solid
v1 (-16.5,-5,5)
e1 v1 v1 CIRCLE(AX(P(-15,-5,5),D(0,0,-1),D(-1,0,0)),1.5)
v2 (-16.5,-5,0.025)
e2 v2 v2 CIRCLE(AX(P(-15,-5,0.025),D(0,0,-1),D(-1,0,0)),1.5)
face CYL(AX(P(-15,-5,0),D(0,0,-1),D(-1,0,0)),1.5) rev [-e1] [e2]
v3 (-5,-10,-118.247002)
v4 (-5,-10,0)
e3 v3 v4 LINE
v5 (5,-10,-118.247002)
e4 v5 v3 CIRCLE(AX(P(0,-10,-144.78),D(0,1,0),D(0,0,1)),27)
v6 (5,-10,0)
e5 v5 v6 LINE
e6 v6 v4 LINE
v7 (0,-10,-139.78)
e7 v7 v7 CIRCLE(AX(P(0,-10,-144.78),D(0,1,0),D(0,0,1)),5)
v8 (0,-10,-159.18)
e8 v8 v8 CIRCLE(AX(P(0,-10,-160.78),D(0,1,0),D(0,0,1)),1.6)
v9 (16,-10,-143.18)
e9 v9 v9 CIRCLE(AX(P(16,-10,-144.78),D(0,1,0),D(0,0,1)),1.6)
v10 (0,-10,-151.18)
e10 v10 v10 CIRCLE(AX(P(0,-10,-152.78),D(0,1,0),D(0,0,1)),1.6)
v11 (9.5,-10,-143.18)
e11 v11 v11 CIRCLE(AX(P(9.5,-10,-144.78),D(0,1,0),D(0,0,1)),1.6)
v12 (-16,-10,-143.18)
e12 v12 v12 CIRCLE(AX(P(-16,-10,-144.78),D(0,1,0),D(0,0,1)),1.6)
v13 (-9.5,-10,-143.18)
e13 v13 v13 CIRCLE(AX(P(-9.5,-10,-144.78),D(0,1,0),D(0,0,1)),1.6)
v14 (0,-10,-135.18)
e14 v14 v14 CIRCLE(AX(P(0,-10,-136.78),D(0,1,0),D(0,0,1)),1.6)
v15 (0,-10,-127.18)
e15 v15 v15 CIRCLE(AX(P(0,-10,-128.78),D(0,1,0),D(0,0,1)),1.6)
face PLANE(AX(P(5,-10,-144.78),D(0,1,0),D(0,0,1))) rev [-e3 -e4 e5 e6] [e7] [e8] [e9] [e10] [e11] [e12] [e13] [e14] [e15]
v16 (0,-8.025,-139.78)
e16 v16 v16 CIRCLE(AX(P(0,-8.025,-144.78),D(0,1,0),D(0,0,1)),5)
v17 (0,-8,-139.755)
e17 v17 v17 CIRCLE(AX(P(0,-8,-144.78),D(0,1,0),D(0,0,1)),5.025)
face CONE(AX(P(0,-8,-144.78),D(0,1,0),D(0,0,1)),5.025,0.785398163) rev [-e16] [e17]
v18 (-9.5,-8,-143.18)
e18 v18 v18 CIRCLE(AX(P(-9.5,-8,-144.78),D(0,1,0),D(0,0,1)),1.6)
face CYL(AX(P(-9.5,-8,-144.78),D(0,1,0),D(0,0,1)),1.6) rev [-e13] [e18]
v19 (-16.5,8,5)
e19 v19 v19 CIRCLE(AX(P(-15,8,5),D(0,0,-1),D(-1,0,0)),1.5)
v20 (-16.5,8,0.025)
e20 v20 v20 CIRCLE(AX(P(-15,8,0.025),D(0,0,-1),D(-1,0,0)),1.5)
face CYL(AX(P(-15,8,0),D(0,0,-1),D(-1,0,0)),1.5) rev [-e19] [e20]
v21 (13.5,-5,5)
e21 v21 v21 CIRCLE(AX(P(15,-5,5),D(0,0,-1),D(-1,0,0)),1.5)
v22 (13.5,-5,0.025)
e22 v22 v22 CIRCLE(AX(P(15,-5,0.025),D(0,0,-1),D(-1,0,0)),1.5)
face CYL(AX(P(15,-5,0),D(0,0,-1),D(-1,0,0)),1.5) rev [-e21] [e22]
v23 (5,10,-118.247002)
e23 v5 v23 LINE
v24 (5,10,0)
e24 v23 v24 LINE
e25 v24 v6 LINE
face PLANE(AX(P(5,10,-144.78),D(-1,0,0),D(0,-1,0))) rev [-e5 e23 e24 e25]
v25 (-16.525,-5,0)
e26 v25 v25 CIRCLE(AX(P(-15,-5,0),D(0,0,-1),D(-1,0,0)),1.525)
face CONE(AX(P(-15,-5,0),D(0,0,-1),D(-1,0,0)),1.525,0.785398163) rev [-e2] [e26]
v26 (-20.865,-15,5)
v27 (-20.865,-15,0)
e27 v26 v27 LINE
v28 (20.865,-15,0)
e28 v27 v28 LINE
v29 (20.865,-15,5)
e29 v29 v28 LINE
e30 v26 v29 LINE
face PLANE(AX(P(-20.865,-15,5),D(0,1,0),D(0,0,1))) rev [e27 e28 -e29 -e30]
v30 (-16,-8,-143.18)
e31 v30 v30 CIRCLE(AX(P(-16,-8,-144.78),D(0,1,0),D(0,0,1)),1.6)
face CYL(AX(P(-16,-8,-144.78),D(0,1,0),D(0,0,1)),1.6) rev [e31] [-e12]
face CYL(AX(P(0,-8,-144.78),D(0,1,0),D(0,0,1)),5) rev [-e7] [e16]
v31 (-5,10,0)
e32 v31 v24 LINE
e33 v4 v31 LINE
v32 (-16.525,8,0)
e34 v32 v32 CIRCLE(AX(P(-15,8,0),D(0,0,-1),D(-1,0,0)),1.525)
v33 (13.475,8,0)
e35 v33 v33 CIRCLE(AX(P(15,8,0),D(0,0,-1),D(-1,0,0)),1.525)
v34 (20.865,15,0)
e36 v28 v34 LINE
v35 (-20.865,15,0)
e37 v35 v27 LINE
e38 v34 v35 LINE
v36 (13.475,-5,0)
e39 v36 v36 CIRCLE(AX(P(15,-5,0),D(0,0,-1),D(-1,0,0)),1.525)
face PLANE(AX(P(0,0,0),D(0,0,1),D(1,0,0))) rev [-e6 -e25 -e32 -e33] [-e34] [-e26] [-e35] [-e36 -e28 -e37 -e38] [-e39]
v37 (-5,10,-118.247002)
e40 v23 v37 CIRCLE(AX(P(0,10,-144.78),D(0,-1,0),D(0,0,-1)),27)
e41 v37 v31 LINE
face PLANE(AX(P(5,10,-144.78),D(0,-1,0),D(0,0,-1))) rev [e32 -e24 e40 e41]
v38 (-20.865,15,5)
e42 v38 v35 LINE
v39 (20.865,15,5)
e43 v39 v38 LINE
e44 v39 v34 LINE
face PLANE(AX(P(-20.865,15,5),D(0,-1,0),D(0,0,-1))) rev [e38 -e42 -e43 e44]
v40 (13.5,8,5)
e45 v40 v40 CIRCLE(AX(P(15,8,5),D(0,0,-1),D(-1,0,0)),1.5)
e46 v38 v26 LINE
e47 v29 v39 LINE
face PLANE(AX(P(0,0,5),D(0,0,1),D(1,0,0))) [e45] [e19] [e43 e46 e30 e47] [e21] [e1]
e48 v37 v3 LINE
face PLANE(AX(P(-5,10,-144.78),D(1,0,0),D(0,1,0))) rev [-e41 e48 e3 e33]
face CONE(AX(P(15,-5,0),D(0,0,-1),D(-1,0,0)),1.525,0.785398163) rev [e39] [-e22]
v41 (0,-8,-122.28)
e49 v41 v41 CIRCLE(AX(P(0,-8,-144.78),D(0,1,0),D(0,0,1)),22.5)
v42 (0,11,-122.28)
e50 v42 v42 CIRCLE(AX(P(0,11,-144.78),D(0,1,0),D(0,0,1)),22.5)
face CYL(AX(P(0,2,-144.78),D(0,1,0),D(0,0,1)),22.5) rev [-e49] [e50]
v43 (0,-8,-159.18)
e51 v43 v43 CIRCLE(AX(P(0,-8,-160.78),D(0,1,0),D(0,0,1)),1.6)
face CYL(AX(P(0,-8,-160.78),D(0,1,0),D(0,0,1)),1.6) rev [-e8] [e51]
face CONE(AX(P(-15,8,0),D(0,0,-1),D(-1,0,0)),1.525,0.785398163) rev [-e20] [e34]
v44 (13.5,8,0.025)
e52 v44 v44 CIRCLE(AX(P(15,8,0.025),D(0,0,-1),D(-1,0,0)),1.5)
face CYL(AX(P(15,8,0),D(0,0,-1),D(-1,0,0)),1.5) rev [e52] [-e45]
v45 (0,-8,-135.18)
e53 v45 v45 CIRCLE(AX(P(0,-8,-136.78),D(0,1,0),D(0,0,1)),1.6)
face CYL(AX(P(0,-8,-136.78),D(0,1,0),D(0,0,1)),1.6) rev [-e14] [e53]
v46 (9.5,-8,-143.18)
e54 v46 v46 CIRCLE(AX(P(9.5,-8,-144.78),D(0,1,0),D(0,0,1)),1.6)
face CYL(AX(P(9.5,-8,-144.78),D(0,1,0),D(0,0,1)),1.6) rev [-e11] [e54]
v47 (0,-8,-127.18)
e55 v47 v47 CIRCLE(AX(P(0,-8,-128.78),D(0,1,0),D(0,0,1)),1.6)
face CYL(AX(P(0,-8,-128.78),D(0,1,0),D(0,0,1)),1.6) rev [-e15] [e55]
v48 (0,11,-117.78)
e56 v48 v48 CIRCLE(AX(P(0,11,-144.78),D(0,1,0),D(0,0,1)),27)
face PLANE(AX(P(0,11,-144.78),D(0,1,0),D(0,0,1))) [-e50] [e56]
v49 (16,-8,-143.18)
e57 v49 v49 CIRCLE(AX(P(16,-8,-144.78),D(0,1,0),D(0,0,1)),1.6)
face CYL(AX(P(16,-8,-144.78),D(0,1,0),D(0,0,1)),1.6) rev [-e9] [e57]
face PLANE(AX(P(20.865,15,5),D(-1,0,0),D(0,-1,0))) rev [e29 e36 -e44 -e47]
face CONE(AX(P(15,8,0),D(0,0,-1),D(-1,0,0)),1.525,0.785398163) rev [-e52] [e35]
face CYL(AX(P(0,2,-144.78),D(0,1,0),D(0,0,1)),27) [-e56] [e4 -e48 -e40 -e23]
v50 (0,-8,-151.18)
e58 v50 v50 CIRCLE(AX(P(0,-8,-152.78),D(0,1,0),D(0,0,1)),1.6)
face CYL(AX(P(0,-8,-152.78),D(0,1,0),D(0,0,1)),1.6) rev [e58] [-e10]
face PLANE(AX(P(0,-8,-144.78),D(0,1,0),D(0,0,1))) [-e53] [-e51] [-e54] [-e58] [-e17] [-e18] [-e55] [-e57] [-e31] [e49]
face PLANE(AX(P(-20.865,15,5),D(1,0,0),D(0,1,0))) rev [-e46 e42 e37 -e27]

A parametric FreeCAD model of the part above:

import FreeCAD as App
import Part
import Sketcher

doc = App.newDocument("Part")
body = doc.addObject("PartDesign::Body", "Body")

# Sketch on XY plane
sketch1 = doc.addObject("Sketcher::SketchObject", "Sketch")
body.addObject(sketch1)
sketch1.AttachmentSupport = (doc.XY_Plane, [""])
sketch1.MapMode = "FlatFace"
sketch1.addGeometry([
    Part.LineSegment(App.Vector(-21, 15, 0), App.Vector(-21, -15, 0)),
    Part.LineSegment(App.Vector(-21, -15, 0), App.Vector(21, -15, 0)),
    Part.LineSegment(App.Vector(21, -15, 0), App.Vector(21, 15, 0)),
    Part.LineSegment(App.Vector(21, 15, 0), App.Vector(-21, 15, 0)),
], False)
sketch1.addConstraint([
    Sketcher.Constraint("Coincident", 0, 2, 1, 1),
    Sketcher.Constraint("Coincident", 1, 2, 2, 1),
    Sketcher.Constraint("Coincident", 2, 2, 3, 1),
    Sketcher.Constraint("Coincident", 3, 2, 0, 1),
    Sketcher.Constraint("Vertical", 0),
    Sketcher.Constraint("Horizontal", 1),
    Sketcher.Constraint("Vertical", 2),
    Sketcher.Constraint("Horizontal", 3),
    Sketcher.Constraint("Symmetric", 0, 2, 2, 2, -1, 1),
    Sketcher.Constraint("DistanceY", 0, 2, 0, 1, 30.0),
    Sketcher.Constraint("DistanceX", 1, 1, 1, 2, 41.73),
])
pad1 = doc.addObject("PartDesign::Pad", "Pad")
body.addObject(pad1)
pad1.Profile = sketch1
pad1.Length = 5

# Sketch on XY plane
sketch2 = doc.addObject("Sketcher::SketchObject", "Sketch001")
body.addObject(sketch2)
sketch2.AttachmentSupport = (doc.XY_Plane, [""])
sketch2.MapMode = "FlatFace"
sketch2.addGeometry([
    Part.LineSegment(App.Vector(5, 10, 0), App.Vector(5, -10, 0)),
    Part.LineSegment(App.Vector(5, -10, 0), App.Vector(-5, -10, 0)),
    Part.LineSegment(App.Vector(-5, -10, 0), App.Vector(-5, 10, 0)),
    Part.LineSegment(App.Vector(-5, 10, 0), App.Vector(5, 10, 0)),
], False)
sketch2.addConstraint([
    Sketcher.Constraint("Coincident", 0, 2, 1, 1),
    Sketcher.Constraint("Coincident", 1, 2, 2, 1),
    Sketcher.Constraint("Coincident", 2, 2, 3, 1),
    Sketcher.Constraint("Coincident", 3, 2, 0, 1),
    Sketcher.Constraint("Vertical", 0),
    Sketcher.Constraint("Horizontal", 1),
    Sketcher.Constraint("Vertical", 2),
    Sketcher.Constraint("Horizontal", 3),
    Sketcher.Constraint("Symmetric", 0, 2, 2, 2, -1, 1),
    Sketcher.Constraint("DistanceX", 1, 2, 1, 1, 10.0),
    Sketcher.Constraint("DistanceY", 0, 2, 0, 1, 20.0),
])
pad2 = doc.addObject("PartDesign::Pad", "Pad001")
body.addObject(pad2)
pad2.Profile = sketch2
pad2.Length = 144.78
pad2.Reversed = True

# Sketch on XZ plane
sketch3 = doc.addObject("Sketcher::SketchObject", "Sketch002")
body.addObject(sketch3)
sketch3.AttachmentSupport = (doc.XZ_Plane, [""])
sketch3.MapMode = "FlatFace"
sketch3.AttachmentOffset = App.Placement(App.Vector(0, 0, -10), App.Rotation())
sketch3.addGeometry([
    Part.Circle(App.Vector(0, -145, 0), App.Vector(0, 0, 1), 27),
    Part.Circle(App.Vector(0, -145, 0), App.Vector(0, 0, 1), 22),
], False)
sketch3.addConstraint([
    Sketcher.Constraint("Coincident", 1, 3, 0, 3),
    Sketcher.Constraint("PointOnObject", 0, 3, -2),
    Sketcher.Constraint("Diameter", 0, 54.0),
    Sketcher.Constraint("Diameter", 1, 45.0),
    Sketcher.Constraint("DistanceY", 0, 3, -1, 1, 144.78),
])
pad3 = doc.addObject("PartDesign::Pad", "Pad002")
body.addObject(pad3)
pad3.Profile = sketch3
pad3.Type = "TwoLengths"
pad3.Length = 1
pad3.Length2 = 8
pad3.Reversed = True

# Sketch on XZ plane
sketch4 = doc.addObject("Sketcher::SketchObject", "Sketch003")
body.addObject(sketch4)
sketch4.AttachmentSupport = (doc.XZ_Plane, [""])
sketch4.MapMode = "FlatFace"
sketch4.AttachmentOffset = App.Placement(App.Vector(0, 0, -10), App.Rotation())
sketch4.addGeometry(Part.Circle(App.Vector(0, -145, 0), App.Vector(0, 0, 1), 22), False)
sketch4.addConstraint([
    Sketcher.Constraint("PointOnObject", 0, 3, -2),
    Sketcher.Constraint("Diameter", 0, 45.0),
    Sketcher.Constraint("DistanceY", 0, 3, -1, 1, 144.78),
])
pocket1 = doc.addObject("PartDesign::Pocket", "Pocket")
body.addObject(pocket1)
pocket1.Profile = sketch4
pocket1.Type = "ThroughAll"
pocket1.Reversed = True

# Sketch on XZ plane
sketch5 = doc.addObject("Sketcher::SketchObject", "Sketch004")
body.addObject(sketch5)
sketch5.AttachmentSupport = (doc.XZ_Plane, [""])
sketch5.MapMode = "FlatFace"
sketch5.AttachmentOffset = App.Placement(App.Vector(0, 0, -10), App.Rotation())
sketch5.addGeometry(Part.Circle(App.Vector(0, -145, 0), App.Vector(0, 0, 1), 27), False)
sketch5.addConstraint([
    Sketcher.Constraint("PointOnObject", 0, 3, -2),
    Sketcher.Constraint("Diameter", 0, 54.0),
    Sketcher.Constraint("DistanceY", 0, 3, -1, 1, 144.78),
])
pad4 = doc.addObject("PartDesign::Pad", "Pad003")
body.addObject(pad4)
pad4.Profile = sketch5
pad4.Length = 20

# Sketch on XZ plane
sketch6 = doc.addObject("Sketcher::SketchObject", "Sketch005")
body.addObject(sketch6)
sketch6.AttachmentSupport = (doc.XZ_Plane, [""])
sketch6.MapMode = "FlatFace"
sketch6.AttachmentOffset = App.Placement(App.Vector(0, 0, 8), App.Rotation())
sketch6.addGeometry(Part.Circle(App.Vector(0, -145, 0), App.Vector(0, 0, 1), 22), False)
sketch6.addConstraint([
    Sketcher.Constraint("PointOnObject", 0, 3, -2),
    Sketcher.Constraint("Diameter", 0, 45.0),
    Sketcher.Constraint("DistanceY", 0, 3, -1, 1, 144.78),
])
pocket2 = doc.addObject("PartDesign::Pocket", "Pocket001")
body.addObject(pocket2)
pocket2.Profile = sketch6
pocket2.Length = 18

# Sketch on XY plane
sketch7 = doc.addObject("Sketcher::SketchObject", "Sketch006")
body.addObject(sketch7)
sketch7.AttachmentSupport = (doc.XY_Plane, [""])
sketch7.MapMode = "FlatFace"
sketch7.addGeometry([
    Part.Circle(App.Vector(-15, 8, 0), App.Vector(0, 0, 1), 1.5),
    Part.Circle(App.Vector(15, 8, 0), App.Vector(0, 0, 1), 1.5),
    Part.Circle(App.Vector(-15, -5, 0), App.Vector(0, 0, 1), 1.5),
    Part.Circle(App.Vector(15, -5, 0), App.Vector(0, 0, 1), 1.5),
], False)
sketch7.addConstraint([
    Sketcher.Constraint("Equal", 0, 1),
    Sketcher.Constraint("Equal", 1, 2),
    Sketcher.Constraint("Equal", 2, 3),
    Sketcher.Constraint("Symmetric", 0, 3, 1, 3, -2),
    Sketcher.Constraint("Symmetric", 2, 3, 3, 3, -2),
    Sketcher.Constraint("Vertical", 0, 3, 2, 3),
    Sketcher.Constraint("Diameter", 0, 3.0),
    Sketcher.Constraint("DistanceX", 0, 3, -1, 1, 15.0),
    Sketcher.Constraint("DistanceY", -1, 1, 0, 3, 8.0),
    Sketcher.Constraint("DistanceY", 2, 3, -1, 1, 5.0),
])
doc.recompute()
hole = doc.addObject("PartDesign::Hole", "Hole")
body.addObject(hole)
hole.Profile = sketch7
hole.ThreadType = "None"
hole.Diameter = 3
hole.DepthType = "Dimension"
hole.Depth = 5
hole.DrillPoint = "Flat"
hole.HoleCutType = "Countersink"
hole.HoleCutDiameter = 3.05
hole.HoleCutCountersinkAngle = 90
hole.Reversed = True

# Sketch on XZ plane
sketch8 = doc.addObject("Sketcher::SketchObject", "Sketch007")
body.addObject(sketch8)
sketch8.AttachmentSupport = (doc.XZ_Plane, [""])
sketch8.MapMode = "FlatFace"
sketch8.AttachmentOffset = App.Placement(App.Vector(0, 0, 8), App.Rotation())
sketch8.addGeometry(Part.Circle(App.Vector(0, -145, 0), App.Vector(0, 0, 1), 5), False)
sketch8.addConstraint([
    Sketcher.Constraint("PointOnObject", 0, 3, -2),
    Sketcher.Constraint("Diameter", 0, 10.0),
    Sketcher.Constraint("DistanceY", 0, 3, -1, 1, 144.78),
])
doc.recompute()
hole2 = doc.addObject("PartDesign::Hole", "Hole001")
body.addObject(hole2)
hole2.Profile = sketch8
hole2.ThreadType = "None"
hole2.Diameter = 10
hole2.DepthType = "ThroughAll"
hole2.HoleCutType = "Countersink"
hole2.HoleCutDiameter = 10.05
hole2.HoleCutCountersinkAngle = 90
hole2.Reversed = True

# Sketch on XZ plane
sketch9 = doc.addObject("Sketcher::SketchObject", "Sketch008")
body.addObject(sketch9)
sketch9.AttachmentSupport = (doc.XZ_Plane, [""])
sketch9.MapMode = "FlatFace"
sketch9.AttachmentOffset = App.Placement(App.Vector(0, 0, 8), App.Rotation())
sketch9.addGeometry([
    Part.Circle(App.Vector(0, -128.8, 0), App.Vector(0, 0, 1), 1.6),  # 0
    Part.Circle(App.Vector(0, -136.8, 0), App.Vector(0, 0, 1), 1.6),  # 1
    Part.Circle(App.Vector(16, -144.8, 0), App.Vector(0, 0, 1), 1.6),  # 2
    Part.Circle(App.Vector(9.5, -144.8, 0), App.Vector(0, 0, 1), 1.6),  # 3
    Part.Circle(App.Vector(0, -160.8, 0), App.Vector(0, 0, 1), 1.6),  # 4
    Part.Circle(App.Vector(0, -152.8, 0), App.Vector(0, 0, 1), 1.6),  # 5
    Part.Circle(App.Vector(-16, -144.8, 0), App.Vector(0, 0, 1), 1.6),  # 6
    Part.Circle(App.Vector(-9.5, -144.8, 0), App.Vector(0, 0, 1), 1.6),  # 7
], False)
sketch9.addConstraint([
    Sketcher.Constraint("Equal", 0, 1),
    Sketcher.Constraint("Equal", 1, 2),
    Sketcher.Constraint("Equal", 2, 3),
    Sketcher.Constraint("Equal", 3, 4),
    Sketcher.Constraint("Equal", 4, 5),
    Sketcher.Constraint("Equal", 5, 6),
    Sketcher.Constraint("Equal", 6, 7),
    Sketcher.Constraint("Symmetric", 2, 3, 6, 3, -2),
    Sketcher.Constraint("Symmetric", 3, 3, 7, 3, -2),
    Sketcher.Constraint("PointOnObject", 0, 3, -2),
    Sketcher.Constraint("PointOnObject", 1, 3, -2),
    Sketcher.Constraint("PointOnObject", 4, 3, -2),
    Sketcher.Constraint("PointOnObject", 5, 3, -2),
    Sketcher.Constraint("Horizontal", 2, 3, 3, 3),
    Sketcher.Constraint("Diameter", 0, 3.2),
    Sketcher.Constraint("DistanceX", -1, 1, 2, 3, 16.0),
    Sketcher.Constraint("DistanceY", 1, 3, 0, 3, 8.0),
    Sketcher.Constraint("DistanceY", 2, 3, 1, 3, 8.0),
    Sketcher.Constraint("DistanceY", 4, 3, 3, 3, 16.0),
    Sketcher.Constraint("DistanceY", 4, 3, 5, 3, 8.0),
    Sketcher.Constraint("DistanceX", -1, 1, 3, 3, 9.5),
    Sketcher.Constraint("DistanceY", 0, 3, -1, 1, 128.78),
])
doc.recompute()
hole3 = doc.addObject("PartDesign::Hole", "Hole002")
body.addObject(hole3)
hole3.Profile = sketch9
hole3.ThreadType = "None"
hole3.Diameter = 3.2
hole3.DepthType = "ThroughAll"
hole3.Reversed = True

doc.recompute()
